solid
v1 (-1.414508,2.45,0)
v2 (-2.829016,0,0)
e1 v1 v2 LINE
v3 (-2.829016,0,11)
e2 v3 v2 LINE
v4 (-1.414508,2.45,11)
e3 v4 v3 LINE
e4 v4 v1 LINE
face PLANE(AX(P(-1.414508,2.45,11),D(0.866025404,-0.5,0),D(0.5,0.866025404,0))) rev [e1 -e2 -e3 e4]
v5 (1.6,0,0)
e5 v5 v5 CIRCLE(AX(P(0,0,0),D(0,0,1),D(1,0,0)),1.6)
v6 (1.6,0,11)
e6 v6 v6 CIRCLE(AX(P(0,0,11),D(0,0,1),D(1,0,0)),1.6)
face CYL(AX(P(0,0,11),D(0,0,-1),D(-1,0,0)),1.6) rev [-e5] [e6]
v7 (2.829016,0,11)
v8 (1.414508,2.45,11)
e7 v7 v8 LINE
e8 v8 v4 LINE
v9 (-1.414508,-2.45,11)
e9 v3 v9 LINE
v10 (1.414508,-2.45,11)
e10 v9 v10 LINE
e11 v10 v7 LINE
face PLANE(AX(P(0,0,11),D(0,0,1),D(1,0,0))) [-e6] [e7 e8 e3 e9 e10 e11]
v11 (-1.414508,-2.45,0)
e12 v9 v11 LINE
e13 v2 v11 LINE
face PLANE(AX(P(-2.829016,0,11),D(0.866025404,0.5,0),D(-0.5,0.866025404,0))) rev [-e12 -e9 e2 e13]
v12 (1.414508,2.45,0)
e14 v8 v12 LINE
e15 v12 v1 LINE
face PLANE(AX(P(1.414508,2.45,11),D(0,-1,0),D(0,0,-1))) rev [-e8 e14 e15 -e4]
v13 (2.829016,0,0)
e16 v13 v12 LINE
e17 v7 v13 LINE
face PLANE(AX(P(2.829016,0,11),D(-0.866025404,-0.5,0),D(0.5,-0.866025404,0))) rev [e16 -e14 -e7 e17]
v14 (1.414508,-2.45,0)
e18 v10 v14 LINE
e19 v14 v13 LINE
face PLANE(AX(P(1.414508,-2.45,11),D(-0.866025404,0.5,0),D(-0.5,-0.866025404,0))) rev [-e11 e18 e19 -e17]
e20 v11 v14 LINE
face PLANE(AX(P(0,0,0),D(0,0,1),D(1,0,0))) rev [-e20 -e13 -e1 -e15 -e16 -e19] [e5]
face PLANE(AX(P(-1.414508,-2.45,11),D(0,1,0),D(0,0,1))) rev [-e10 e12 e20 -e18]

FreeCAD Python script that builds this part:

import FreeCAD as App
import Part
import Sketcher
Q = App.Units.Quantity


def add_polygon(sketch, points):
    """Adds a closed chain of lines whose ends are joined by coincident constraints."""
    first, n = sketch.GeometryCount, len(points)
    for a, b in zip(points, points[1:] + points[:1]):
        sketch.addGeometry(Part.LineSegment(App.Vector(*a, 0), App.Vector(*b, 0)), False)
    for i in range(n):
        sketch.addConstraint(Sketcher.Constraint("Coincident", first + i, 2, first + (i + 1) % n, 1))

doc = App.newDocument("Part")
body = doc.addObject("PartDesign::Body", "Body")

# Sketch on XY plane
sketch1 = body.newObject("Sketcher::SketchObject", "Sketch")
sketch1.AttachmentSupport = (doc.getObject("XY_Plane"), [""])
sketch1.MapMode = "FlatFace"
add_polygon(sketch1, [(2.8, 0), (1.4, 2.5), (-1.4, 2.5), (-2.8, 0), (-1.4, -2.5), (1.4, -2.5)])  # lines 0-5
sketch1.addGeometry(Part.Circle(App.Vector(0, 0, 0), App.Vector(0, 0, 1), 1.6), False)  # 6
sketch1.addConstraint([
    Sketcher.Constraint("Horizontal", 1),
    Sketcher.Constraint("Horizontal", 4),
    Sketcher.Constraint("Coincident", 6, 3, -1, 1),
    Sketcher.Constraint("Symmetric", 0, 2, 3, 2, -1, 1),
    Sketcher.Constraint("Symmetric", 2, 2, 5, 2, -1, 1),
    Sketcher.Constraint("PointOnObject", 2, 2, -1),
    Sketcher.Constraint("Parallel", 2, 5),
    Sketcher.Constraint("Vertical", 1, 2, 3, 2),
    Sketcher.Constraint("Diameter", 6, 3.2),
    Sketcher.Constraint("Angle", 0, Q("120 deg")),
    Sketcher.Constraint("DistanceY", 3, 2, 1, 2, 4.9),
    Sketcher.Constraint("DistanceX", 1, 2, 1, 1, 2.829016),
])
pad1 = body.newObject("PartDesign::Pad", "Pad")
pad1.Profile = sketch1
pad1.Length = 11

doc.recompute()
